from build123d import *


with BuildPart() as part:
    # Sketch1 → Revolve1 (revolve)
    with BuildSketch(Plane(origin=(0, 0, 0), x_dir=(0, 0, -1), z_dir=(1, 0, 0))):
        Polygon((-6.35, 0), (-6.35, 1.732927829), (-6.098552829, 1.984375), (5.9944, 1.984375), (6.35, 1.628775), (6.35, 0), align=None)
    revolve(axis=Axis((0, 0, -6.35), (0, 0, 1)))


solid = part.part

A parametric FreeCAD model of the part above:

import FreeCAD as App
import Part
import Sketcher

V = App.Vector
Q = App.Units.Quantity

doc = App.newDocument("Part")
params = doc.addObject("Spreadsheet::Sheet", "Params")
for row, (alias, value) in enumerate([
    ("sketch1_height", "0.5 in"),
    ("sketch1_length", "0.014 in"),
    ("revolution_angle", "360 deg"),
], start=1):
    params.set(f"A{row}", alias)
    params.set(f"B{row}", "=" + value)
    params.setAlias(f"B{row}", alias)

body = doc.addObject("PartDesign::Body", "Body")

sketch1 = body.newObject("Sketcher::SketchObject", "Sketch")
sketch1.AttachmentSupport = (doc.getObject("YZ_Plane"), [""])
sketch1.MapMode = "FlatFace"
sketch1.addGeometry([
    Part.LineSegment(V(1.73, 6.35, 0), V(0, 6.35, 0)),
    Part.LineSegment(V(0, 6.35, 0), V(0, -6.35, 0)),
    Part.LineSegment(V(0, -6.35, 0), V(1.63, -6.35, 0)),
    Part.LineSegment(V(1.63, -6.35, 0), V(1.98, -5.99, 0)),
    Part.LineSegment(V(1.98, -5.99, 0), V(1.98, 6.1, 0)),
    Part.LineSegment(V(1.98, 6.1, 0), V(1.73, 6.35, 0)),
], False)
sketch1.addConstraint([
    Sketcher.Constraint("Coincident", 0, 2, 1, 1),
    Sketcher.Constraint("Coincident", 1, 2, 2, 1),
    Sketcher.Constraint("Coincident", 2, 2, 3, 1),
    Sketcher.Constraint("Coincident", 3, 2, 4, 1),
    Sketcher.Constraint("Coincident", 4, 2, 5, 1),
    Sketcher.Constraint("Coincident", 5, 2, 0, 1),
    Sketcher.Constraint("Horizontal", 0),
    Sketcher.Constraint("Vertical", 1),
    Sketcher.Constraint("Horizontal", 2),
    Sketcher.Constraint("Vertical", 4),
    Sketcher.Constraint("Symmetric", 0, 2, 1, 2, -1, 1),
    Sketcher.Constraint("Perpendicular", 3, 5),
    Sketcher.Constraint("DistanceY", 1, 2, 1, 1, Q("0.5 in")),
    Sketcher.Constraint("Angle", 3, Q("45 deg")),
    Sketcher.Constraint("Distance", 5, Q("0.014 in")),
    Sketcher.Constraint("DistanceX", -1, 1, 3, 2, Q("0.078125 in")),
    Sketcher.Constraint("DistanceY", 3, 2, -1, 1, Q("0.236 in")),
])
sketch1.setExpression("Constraints[12]", "Params.sketch1_height")
sketch1.setExpression("Constraints[14]", "Params.sketch1_length")
revolution = body.newObject("PartDesign::Revolution", "Revolution")
revolution.Profile = sketch1
revolution.ReferenceAxis = (sketch1, ["V_Axis"])
revolution.setExpression("Angle", "Params.revolution_angle")

doc.recompute()
